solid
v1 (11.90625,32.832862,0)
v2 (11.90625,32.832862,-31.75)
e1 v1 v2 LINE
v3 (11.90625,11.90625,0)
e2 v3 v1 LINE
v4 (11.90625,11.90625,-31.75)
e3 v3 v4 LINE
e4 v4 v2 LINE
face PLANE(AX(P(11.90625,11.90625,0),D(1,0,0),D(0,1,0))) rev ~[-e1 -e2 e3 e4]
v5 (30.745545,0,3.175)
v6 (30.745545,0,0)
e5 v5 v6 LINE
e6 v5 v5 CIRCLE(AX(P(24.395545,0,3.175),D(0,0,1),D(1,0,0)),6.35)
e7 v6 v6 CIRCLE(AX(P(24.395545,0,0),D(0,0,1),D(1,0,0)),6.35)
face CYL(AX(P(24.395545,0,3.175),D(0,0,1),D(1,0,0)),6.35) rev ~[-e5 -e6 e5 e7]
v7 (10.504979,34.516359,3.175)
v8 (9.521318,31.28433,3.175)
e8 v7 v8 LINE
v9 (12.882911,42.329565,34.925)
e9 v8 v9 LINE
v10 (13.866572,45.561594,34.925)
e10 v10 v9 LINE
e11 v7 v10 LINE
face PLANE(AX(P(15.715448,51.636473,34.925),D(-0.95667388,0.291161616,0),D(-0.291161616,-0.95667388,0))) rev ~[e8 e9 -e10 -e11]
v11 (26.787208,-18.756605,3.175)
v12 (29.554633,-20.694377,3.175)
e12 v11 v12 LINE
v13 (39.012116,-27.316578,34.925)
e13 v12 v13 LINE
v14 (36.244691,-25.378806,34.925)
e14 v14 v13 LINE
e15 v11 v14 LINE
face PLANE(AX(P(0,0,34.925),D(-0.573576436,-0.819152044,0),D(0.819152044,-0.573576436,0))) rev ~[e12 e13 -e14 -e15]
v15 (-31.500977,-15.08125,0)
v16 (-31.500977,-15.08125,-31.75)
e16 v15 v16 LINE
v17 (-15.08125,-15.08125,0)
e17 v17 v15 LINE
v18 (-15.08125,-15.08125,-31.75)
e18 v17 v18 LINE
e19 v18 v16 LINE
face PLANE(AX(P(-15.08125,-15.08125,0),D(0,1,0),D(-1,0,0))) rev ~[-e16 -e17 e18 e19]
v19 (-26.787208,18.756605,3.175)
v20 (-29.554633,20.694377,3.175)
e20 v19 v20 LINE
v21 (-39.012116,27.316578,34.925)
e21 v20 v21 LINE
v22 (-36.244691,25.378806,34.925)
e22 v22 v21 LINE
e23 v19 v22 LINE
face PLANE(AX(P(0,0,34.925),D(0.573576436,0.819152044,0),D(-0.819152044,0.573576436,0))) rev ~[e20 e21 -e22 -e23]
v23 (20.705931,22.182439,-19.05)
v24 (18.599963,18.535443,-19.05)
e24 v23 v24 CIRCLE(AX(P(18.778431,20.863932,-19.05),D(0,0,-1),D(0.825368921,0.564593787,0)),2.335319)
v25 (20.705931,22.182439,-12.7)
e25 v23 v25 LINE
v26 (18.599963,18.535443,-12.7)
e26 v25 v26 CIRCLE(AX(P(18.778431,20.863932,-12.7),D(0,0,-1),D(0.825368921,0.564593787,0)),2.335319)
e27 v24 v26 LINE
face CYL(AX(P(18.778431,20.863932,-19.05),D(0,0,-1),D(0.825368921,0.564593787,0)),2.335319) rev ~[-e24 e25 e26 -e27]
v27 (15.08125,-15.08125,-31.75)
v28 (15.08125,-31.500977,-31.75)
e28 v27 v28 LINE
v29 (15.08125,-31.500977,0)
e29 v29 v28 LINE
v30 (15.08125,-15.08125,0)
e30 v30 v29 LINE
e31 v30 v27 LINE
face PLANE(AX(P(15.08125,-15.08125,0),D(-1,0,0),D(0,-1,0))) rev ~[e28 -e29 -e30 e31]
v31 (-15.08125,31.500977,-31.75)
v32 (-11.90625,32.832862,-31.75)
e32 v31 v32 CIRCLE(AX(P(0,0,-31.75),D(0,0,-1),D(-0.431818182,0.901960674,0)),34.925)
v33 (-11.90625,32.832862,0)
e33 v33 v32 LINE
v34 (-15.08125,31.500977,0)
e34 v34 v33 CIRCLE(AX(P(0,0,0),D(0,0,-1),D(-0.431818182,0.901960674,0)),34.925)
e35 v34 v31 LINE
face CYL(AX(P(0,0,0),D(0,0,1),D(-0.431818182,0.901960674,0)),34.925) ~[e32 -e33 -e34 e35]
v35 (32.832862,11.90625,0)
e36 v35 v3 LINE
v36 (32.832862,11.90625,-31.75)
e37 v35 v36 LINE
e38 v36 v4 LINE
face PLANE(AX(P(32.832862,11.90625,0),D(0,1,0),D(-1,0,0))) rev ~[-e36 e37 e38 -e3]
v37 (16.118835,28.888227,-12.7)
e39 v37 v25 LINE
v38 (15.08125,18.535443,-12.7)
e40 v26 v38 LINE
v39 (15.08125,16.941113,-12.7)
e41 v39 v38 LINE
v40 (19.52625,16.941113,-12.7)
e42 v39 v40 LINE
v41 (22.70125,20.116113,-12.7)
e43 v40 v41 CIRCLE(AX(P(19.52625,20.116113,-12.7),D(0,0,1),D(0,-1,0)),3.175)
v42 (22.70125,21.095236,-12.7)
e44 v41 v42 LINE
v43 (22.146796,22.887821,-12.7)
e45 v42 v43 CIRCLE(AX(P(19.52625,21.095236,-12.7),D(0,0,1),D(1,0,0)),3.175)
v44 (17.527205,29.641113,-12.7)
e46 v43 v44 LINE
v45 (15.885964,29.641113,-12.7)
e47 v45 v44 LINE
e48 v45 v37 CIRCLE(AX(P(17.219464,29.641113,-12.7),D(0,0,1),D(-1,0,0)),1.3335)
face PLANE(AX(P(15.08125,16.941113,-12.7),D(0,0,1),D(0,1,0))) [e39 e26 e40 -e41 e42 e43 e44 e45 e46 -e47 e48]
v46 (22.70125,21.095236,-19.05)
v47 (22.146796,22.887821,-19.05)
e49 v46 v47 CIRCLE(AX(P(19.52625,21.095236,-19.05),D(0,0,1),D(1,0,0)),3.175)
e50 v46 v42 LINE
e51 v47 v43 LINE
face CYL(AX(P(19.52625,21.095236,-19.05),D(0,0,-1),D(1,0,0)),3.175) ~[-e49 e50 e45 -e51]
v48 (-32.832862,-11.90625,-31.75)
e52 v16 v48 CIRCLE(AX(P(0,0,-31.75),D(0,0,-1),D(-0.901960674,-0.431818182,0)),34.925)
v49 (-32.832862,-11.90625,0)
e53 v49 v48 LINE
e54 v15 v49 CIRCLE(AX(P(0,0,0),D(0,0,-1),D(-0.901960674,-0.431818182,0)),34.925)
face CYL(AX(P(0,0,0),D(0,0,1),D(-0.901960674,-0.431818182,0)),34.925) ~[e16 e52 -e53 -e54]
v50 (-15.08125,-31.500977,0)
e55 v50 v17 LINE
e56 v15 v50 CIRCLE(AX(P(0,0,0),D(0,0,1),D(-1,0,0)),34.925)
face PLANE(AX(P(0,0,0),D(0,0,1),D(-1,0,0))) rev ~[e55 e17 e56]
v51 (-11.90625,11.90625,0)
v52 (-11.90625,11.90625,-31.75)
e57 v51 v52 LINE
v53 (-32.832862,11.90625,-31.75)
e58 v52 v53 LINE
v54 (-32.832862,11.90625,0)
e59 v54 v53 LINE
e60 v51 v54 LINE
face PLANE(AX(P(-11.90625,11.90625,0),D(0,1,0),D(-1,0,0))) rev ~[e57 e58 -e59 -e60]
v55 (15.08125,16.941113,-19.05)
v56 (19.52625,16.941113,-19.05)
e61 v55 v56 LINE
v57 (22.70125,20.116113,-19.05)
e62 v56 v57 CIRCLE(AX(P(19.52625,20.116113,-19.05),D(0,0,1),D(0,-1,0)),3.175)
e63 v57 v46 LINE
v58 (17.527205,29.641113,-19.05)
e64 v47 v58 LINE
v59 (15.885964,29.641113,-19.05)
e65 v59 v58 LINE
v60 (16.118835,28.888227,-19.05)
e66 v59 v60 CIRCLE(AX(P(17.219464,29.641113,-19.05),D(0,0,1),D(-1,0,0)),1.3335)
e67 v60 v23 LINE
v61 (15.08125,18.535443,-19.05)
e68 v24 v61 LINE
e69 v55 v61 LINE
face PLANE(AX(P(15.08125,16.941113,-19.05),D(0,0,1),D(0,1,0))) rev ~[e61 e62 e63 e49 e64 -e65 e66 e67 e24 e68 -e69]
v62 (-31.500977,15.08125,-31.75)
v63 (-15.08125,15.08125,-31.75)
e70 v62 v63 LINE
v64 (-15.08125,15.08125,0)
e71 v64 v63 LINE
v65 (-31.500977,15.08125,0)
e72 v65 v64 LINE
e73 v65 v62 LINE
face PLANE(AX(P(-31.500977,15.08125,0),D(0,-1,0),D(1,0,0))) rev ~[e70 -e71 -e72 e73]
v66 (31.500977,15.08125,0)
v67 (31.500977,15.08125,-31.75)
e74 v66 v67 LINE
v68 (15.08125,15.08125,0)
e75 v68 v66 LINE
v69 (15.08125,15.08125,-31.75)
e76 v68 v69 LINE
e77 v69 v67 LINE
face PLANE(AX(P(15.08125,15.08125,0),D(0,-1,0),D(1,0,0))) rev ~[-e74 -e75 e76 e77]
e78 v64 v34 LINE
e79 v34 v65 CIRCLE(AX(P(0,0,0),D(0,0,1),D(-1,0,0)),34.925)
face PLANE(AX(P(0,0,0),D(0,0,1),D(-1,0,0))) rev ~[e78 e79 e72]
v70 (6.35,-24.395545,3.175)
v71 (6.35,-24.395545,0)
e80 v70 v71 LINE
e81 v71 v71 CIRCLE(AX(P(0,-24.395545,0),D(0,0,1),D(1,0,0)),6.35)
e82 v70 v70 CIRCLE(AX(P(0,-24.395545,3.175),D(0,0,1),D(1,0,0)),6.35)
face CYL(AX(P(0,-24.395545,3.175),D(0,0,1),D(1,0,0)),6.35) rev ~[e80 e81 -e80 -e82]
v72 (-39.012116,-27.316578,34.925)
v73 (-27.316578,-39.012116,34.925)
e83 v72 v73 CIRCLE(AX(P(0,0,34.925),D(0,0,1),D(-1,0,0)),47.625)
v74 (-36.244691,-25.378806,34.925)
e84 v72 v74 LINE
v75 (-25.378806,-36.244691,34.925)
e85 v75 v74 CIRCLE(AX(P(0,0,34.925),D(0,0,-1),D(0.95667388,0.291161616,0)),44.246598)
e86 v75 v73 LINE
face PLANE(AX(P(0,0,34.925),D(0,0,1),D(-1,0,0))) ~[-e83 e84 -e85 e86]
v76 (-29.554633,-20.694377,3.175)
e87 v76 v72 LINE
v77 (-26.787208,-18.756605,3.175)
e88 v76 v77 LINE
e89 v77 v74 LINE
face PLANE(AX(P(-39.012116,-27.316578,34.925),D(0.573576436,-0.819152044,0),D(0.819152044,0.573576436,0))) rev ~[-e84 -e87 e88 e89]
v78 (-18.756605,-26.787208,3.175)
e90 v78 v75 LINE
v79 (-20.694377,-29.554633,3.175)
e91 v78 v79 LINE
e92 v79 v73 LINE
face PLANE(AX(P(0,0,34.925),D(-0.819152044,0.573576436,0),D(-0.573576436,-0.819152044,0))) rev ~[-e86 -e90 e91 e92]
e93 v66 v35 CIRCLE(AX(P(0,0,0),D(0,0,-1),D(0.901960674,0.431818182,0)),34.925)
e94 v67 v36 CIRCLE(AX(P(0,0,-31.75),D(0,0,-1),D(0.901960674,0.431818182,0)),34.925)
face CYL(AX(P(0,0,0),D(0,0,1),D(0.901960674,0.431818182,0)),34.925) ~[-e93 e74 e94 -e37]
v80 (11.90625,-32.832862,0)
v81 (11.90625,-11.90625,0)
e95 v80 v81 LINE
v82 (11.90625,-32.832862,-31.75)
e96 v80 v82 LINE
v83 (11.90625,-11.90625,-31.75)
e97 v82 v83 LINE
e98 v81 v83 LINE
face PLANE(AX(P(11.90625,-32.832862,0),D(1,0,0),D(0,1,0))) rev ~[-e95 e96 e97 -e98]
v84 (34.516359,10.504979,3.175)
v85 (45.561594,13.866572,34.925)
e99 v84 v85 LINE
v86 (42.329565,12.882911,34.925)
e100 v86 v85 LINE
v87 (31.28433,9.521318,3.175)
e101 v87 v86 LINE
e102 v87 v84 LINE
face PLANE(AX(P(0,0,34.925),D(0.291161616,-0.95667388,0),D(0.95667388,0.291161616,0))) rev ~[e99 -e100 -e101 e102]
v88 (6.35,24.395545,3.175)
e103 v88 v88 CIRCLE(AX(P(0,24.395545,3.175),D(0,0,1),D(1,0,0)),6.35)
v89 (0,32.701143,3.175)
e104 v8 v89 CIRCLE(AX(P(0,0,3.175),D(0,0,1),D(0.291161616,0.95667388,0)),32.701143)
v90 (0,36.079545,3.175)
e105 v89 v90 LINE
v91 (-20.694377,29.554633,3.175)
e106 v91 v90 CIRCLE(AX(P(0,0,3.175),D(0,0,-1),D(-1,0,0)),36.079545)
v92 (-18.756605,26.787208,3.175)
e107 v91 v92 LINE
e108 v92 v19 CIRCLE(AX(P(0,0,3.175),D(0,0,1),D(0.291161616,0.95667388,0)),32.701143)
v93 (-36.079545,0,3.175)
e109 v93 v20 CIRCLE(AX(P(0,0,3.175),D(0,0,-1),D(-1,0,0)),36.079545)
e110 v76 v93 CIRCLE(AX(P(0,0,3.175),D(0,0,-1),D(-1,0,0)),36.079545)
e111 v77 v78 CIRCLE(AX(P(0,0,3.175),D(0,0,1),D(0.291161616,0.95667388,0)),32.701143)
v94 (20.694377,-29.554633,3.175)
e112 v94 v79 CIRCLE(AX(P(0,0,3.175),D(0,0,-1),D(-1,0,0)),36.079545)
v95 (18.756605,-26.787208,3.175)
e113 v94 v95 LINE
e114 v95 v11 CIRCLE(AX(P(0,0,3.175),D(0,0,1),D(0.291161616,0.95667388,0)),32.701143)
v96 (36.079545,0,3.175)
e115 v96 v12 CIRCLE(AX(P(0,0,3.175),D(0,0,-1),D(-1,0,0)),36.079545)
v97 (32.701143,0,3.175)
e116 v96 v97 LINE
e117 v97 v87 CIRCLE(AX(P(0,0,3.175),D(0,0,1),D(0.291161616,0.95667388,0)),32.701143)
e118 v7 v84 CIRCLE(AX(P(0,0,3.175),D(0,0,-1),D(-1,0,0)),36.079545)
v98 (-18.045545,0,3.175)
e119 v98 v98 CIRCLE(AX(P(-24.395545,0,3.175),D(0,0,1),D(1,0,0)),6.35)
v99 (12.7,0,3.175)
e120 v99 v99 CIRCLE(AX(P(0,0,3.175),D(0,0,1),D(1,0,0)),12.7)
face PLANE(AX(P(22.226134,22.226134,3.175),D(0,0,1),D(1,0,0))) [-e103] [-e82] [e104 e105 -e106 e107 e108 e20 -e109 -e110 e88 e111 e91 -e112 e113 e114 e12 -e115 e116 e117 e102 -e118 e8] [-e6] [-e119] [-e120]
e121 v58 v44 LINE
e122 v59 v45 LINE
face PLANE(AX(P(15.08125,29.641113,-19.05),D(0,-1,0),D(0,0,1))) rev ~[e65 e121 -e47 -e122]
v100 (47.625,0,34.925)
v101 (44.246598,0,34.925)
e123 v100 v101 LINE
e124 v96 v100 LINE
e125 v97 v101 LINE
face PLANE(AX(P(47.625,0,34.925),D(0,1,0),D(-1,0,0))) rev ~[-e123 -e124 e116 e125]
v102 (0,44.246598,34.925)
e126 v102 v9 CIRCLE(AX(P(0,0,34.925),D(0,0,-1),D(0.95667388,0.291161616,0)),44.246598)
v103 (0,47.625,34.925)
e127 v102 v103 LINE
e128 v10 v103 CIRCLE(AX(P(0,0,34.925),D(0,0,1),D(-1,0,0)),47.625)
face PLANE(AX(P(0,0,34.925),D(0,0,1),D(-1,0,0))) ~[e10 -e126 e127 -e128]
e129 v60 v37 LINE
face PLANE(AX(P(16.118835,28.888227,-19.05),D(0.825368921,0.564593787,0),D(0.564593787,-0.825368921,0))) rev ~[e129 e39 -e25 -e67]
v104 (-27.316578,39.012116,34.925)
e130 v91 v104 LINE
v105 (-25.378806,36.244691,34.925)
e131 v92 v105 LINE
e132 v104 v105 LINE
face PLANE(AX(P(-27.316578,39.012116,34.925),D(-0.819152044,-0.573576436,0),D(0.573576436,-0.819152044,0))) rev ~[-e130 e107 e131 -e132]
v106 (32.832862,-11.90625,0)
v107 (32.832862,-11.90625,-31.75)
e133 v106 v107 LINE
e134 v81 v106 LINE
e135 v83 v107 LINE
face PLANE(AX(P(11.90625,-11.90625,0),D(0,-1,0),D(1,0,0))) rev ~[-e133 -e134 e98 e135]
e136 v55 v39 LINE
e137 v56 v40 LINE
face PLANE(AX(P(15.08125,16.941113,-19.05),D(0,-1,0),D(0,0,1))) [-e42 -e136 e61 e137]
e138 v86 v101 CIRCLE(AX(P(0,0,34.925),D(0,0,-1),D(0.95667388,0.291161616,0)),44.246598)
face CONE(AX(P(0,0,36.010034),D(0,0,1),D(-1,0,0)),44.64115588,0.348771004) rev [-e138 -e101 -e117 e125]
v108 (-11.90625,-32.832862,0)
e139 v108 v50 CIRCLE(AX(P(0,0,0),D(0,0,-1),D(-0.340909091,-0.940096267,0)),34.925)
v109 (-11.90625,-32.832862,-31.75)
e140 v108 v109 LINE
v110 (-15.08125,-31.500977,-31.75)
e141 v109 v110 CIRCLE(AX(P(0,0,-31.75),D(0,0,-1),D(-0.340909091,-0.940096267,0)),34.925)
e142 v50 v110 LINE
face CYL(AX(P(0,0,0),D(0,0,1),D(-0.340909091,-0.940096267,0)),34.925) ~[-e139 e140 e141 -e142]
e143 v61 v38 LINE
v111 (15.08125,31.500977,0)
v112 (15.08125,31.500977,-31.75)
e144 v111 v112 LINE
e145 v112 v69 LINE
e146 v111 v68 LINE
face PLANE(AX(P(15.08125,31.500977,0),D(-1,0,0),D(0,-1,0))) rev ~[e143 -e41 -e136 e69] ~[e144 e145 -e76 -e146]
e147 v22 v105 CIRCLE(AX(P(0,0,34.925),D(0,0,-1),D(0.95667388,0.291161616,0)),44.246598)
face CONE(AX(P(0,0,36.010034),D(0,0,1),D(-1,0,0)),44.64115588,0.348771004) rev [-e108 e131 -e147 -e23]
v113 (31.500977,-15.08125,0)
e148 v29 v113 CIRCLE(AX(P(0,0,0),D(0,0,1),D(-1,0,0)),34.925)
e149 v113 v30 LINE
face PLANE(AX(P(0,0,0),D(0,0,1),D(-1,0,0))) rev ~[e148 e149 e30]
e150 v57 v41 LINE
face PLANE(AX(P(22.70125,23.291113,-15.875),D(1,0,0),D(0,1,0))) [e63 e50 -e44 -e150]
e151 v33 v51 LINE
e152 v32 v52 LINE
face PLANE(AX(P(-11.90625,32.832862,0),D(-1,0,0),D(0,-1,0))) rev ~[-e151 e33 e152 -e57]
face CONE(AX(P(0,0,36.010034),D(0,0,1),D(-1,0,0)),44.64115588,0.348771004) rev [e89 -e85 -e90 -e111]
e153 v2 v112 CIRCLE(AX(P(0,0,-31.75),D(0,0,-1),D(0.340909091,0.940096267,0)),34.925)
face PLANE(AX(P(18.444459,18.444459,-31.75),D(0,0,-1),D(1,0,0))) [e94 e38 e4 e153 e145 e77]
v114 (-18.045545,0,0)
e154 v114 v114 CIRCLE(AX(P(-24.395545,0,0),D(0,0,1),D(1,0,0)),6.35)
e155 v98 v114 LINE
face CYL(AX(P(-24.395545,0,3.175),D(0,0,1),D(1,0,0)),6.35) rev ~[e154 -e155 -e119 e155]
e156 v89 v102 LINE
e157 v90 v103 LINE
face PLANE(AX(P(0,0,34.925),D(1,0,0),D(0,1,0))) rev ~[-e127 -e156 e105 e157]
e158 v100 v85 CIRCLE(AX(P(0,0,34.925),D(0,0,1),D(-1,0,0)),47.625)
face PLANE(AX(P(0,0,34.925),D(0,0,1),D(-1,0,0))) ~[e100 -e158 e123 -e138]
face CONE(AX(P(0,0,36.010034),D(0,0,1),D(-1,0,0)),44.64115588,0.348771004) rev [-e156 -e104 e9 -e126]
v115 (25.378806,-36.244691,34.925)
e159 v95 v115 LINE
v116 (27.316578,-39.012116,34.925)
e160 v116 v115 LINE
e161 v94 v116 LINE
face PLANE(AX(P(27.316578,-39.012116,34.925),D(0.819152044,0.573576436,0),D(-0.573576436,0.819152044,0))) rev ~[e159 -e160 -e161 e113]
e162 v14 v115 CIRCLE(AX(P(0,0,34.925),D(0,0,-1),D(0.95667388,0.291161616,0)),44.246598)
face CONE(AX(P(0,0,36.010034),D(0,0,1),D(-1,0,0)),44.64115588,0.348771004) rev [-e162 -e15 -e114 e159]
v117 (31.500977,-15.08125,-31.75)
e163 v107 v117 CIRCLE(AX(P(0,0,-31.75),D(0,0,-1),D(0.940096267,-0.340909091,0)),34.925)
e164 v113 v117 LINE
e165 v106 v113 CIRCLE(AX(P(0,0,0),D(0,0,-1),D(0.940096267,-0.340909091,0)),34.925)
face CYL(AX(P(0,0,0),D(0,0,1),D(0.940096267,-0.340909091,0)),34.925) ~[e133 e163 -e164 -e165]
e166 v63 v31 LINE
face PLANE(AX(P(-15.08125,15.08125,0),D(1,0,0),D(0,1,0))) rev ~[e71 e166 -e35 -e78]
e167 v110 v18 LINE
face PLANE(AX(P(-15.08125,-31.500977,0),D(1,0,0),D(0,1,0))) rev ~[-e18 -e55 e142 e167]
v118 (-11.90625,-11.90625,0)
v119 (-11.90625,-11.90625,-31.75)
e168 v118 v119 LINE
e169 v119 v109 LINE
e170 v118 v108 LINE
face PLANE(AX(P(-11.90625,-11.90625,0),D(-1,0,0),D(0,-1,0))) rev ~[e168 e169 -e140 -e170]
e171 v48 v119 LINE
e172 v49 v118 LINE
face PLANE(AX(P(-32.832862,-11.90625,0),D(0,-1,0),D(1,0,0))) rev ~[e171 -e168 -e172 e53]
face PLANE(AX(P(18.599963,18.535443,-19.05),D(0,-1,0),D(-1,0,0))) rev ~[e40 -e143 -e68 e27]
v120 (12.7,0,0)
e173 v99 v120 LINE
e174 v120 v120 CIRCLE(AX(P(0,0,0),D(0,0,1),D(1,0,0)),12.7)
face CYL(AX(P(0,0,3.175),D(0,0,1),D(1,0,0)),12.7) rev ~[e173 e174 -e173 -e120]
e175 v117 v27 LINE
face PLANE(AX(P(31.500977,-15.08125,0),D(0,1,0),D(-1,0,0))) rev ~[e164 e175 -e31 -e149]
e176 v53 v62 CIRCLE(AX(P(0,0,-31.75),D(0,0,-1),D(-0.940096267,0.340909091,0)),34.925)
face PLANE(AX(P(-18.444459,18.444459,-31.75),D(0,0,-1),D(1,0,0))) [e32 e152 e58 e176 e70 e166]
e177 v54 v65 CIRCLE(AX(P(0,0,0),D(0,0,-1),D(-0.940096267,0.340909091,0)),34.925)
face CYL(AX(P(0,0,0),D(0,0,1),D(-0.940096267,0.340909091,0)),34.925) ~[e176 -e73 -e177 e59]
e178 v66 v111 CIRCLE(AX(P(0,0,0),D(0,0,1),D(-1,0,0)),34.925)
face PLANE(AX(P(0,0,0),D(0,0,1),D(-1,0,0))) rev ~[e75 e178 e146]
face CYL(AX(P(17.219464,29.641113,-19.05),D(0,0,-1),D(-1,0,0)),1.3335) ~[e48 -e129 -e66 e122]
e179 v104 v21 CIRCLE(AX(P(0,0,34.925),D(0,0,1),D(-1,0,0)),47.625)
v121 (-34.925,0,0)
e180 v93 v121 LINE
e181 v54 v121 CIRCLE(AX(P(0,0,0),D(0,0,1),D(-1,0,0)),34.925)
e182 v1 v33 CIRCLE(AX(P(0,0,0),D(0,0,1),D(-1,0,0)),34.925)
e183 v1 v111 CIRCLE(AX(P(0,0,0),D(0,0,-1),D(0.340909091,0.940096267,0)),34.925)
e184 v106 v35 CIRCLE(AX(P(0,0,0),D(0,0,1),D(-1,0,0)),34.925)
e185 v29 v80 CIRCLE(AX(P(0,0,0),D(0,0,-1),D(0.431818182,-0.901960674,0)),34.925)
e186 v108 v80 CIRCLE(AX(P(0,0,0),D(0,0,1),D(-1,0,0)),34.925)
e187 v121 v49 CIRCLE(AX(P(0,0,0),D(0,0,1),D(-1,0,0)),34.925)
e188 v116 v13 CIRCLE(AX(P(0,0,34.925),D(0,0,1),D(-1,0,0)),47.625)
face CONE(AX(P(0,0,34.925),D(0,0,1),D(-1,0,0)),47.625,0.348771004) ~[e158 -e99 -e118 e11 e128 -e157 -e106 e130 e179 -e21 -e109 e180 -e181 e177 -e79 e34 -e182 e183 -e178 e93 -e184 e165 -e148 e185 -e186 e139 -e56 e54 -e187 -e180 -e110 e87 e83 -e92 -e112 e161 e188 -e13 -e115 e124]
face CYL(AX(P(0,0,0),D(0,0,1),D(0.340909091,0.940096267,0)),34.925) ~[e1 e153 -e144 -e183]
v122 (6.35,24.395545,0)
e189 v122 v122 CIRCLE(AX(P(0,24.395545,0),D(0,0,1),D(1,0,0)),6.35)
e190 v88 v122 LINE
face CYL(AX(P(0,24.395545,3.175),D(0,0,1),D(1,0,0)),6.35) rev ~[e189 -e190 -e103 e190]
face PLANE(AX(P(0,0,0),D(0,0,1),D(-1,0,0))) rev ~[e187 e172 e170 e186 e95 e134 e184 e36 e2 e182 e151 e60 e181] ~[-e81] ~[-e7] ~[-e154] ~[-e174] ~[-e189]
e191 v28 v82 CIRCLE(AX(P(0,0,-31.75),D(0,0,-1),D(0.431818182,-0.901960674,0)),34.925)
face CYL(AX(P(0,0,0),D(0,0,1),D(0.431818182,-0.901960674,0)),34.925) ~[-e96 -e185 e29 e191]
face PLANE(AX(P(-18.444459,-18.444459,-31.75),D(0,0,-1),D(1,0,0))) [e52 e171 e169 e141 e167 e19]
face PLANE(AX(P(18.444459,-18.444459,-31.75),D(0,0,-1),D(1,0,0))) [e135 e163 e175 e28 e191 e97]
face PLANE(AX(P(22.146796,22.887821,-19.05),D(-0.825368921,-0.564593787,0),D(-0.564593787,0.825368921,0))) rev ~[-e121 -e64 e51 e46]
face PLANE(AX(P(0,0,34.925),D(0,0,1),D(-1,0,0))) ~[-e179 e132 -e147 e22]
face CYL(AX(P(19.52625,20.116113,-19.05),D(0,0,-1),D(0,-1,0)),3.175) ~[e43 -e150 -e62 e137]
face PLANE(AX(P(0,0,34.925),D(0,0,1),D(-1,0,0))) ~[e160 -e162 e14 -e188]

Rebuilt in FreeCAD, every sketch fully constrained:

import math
import FreeCAD as App
import Part
import Sketcher
from FreeCAD import Vector
Q = App.Units.Quantity


def faces_at(feature, points):
    """Names of the faces that lie closest to the given points."""
    faces = feature.Shape.Faces
    near = lambda p: min(range(len(faces)), key=lambda i: faces[i].distToShape(Part.Vertex(*p))[0])
    return sorted({f"Face{near(p) + 1}" for p in points})


def add_polygon(sketch, points):
    """Adds a closed chain of lines whose ends are joined by coincident constraints."""
    first, n = sketch.GeometryCount, len(points)
    for a, b in zip(points, points[1:] + points[:1]):
        sketch.addGeometry(Part.LineSegment(App.Vector(*a, 0), App.Vector(*b, 0)), False)
    for i in range(n):
        sketch.addConstraint(Sketcher.Constraint("Coincident", first + i, 2, first + (i + 1) % n, 1))

doc = App.newDocument("Part")
body = doc.addObject("PartDesign::Body", "Body")

sketch1 = doc.addObject("Sketcher::SketchObject", "Sketch")
body.addObject(sketch1)
sketch1.AttachmentSupport = (doc.XZ_Plane, [""])
sketch1.MapMode = "FlatFace"
add_polygon(sketch1, [(-35, 0), (0, 0), (0, 35), (-48, 35)])
sketch1.addConstraint(Sketcher.Constraint("Horizontal", 0))
sketch1.addConstraint(Sketcher.Constraint("Vertical", 1))
sketch1.addConstraint(Sketcher.Constraint("Horizontal", 2))
sketch1.addConstraint(Sketcher.Constraint("Coincident", 0, 2, -1, 1))
sketch1.addConstraint(Sketcher.Constraint("Equal", 0, 1))
sketch1.addConstraint(Sketcher.Constraint("DistanceX", 2, 2, 3, 2, Q("0.5 in")))
sketch1.addConstraint(Sketcher.Constraint("DistanceX", 0, 1, 0, 2, Q("1.375 in")))
revolution = doc.addObject("PartDesign::Revolution", "Revolution")
body.addObject(revolution)
revolution.Profile = sketch1
revolution.ReferenceAxis = (sketch1, ["V_Axis"])
revolution.Angle = 360
doc.recompute()

thickness = doc.addObject("PartDesign::Thickness", "Thickness")
body.addObject(thickness)
thickness.Base = (revolution, faces_at(revolution, [(0, 0, 34.925)]))
thickness.Value = Q("0.125 in")
thickness.Reversed = True
thickness.Join = "Arc"

sketch2 = doc.addObject("Sketcher::SketchObject", "Sketch001")
body.addObject(sketch2)
sketch2.AttachmentSupport = (doc.XY_Plane, [""])
sketch2.MapMode = "FlatFace"
sketch2.addGeometry(Part.LineSegment(Vector(-32.8, -11.9, 0), Vector(-11.9, -11.9, 0)), False)
sketch2.addGeometry(Part.LineSegment(Vector(-11.9, -11.9, 0), Vector(-11.9, -32.8, 0)), False)
sketch2.addGeometry(Part.ArcOfCircle(Part.Circle(Vector(0, 0, 0), Vector(0, 0, 1), 34.9), math.radians(-115.58), math.radians(-109.93)), False)
sketch2.addGeometry(Part.LineSegment(Vector(-15.1, -31.5, 0), Vector(-15.1, -15.1, 0)), False)
sketch2.addGeometry(Part.LineSegment(Vector(-15.1, -15.1, 0), Vector(-31.5, -15.1, 0)), False)
sketch2.addGeometry(Part.ArcOfCircle(Part.Circle(Vector(0, 0, 0), Vector(0, 0, 1), 34.9), math.radians(-160.07), math.radians(-154.42)), False)
sketch2.addGeometry(Part.LineSegment(Vector(-11.9, 32.8, 0), Vector(-11.9, 11.9, 0)), False)
sketch2.addGeometry(Part.LineSegment(Vector(-11.9, 11.9, 0), Vector(-32.8, 11.9, 0)), False)
sketch2.addGeometry(Part.ArcOfCircle(Part.Circle(Vector(0, 0, 0), Vector(0, 0, 1), 34.9), math.radians(154.42), math.radians(160.07)), False)
sketch2.addGeometry(Part.LineSegment(Vector(-31.5, 15.1, 0), Vector(-15.1, 15.1, 0)), False)
sketch2.addGeometry(Part.LineSegment(Vector(-15.1, 15.1, 0), Vector(-15.1, 31.5, 0)), False)
sketch2.addGeometry(Part.ArcOfCircle(Part.Circle(Vector(0, 0, 0), Vector(0, 0, 1), 34.9), math.radians(109.93), math.radians(115.58)), False)
sketch2.addGeometry(Part.LineSegment(Vector(32.8, 11.9, 0), Vector(11.9, 11.9, 0)), False)
sketch2.addGeometry(Part.LineSegment(Vector(11.9, 11.9, 0), Vector(11.9, 32.8, 0)), False)
sketch2.addGeometry(Part.ArcOfCircle(Part.Circle(Vector(0, 0, 0), Vector(0, 0, 1), 34.9), math.radians(64.42), math.radians(70.07)), False)
sketch2.addGeometry(Part.LineSegment(Vector(15.1, 31.5, 0), Vector(15.1, 15.1, 0)), False)
sketch2.addGeometry(Part.LineSegment(Vector(15.1, 15.1, 0), Vector(31.5, 15.1, 0)), False)
sketch2.addGeometry(Part.ArcOfCircle(Part.Circle(Vector(0, 0, 0), Vector(0, 0, 1), 34.9), math.radians(19.93), math.radians(25.58)), False)
sketch2.addGeometry(Part.LineSegment(Vector(11.9, -32.8, 0), Vector(11.9, -11.9, 0)), False)
sketch2.addGeometry(Part.LineSegment(Vector(11.9, -11.9, 0), Vector(32.8, -11.9, 0)), False)
sketch2.addGeometry(Part.ArcOfCircle(Part.Circle(Vector(0, 0, 0), Vector(0, 0, 1), 34.9), math.radians(-25.58), math.radians(-19.93)), False)
sketch2.addGeometry(Part.LineSegment(Vector(31.5, -15.1, 0), Vector(15.1, -15.1, 0)), False)
sketch2.addGeometry(Part.LineSegment(Vector(15.1, -15.1, 0), Vector(15.1, -31.5, 0)), False)
sketch2.addGeometry(Part.ArcOfCircle(Part.Circle(Vector(0, 0, 0), Vector(0, 0, 1), 34.9), math.radians(-70.07), math.radians(-64.42)), False)
sketch2.addConstraint(Sketcher.Constraint("Coincident", 0, 2, 1, 1))
sketch2.addConstraint(Sketcher.Constraint("Coincident", 1, 2, 2, 2))
sketch2.addConstraint(Sketcher.Constraint("Coincident", 2, 1, 3, 1))
sketch2.addConstraint(Sketcher.Constraint("Coincident", 3, 2, 4, 1))
sketch2.addConstraint(Sketcher.Constraint("Coincident", 4, 2, 5, 2))
sketch2.addConstraint(Sketcher.Constraint("Coincident", 5, 1, 0, 1))
sketch2.addConstraint(Sketcher.Constraint("Coincident", 6, 2, 7, 1))
sketch2.addConstraint(Sketcher.Constraint("Coincident", 7, 2, 8, 2))
sketch2.addConstraint(Sketcher.Constraint("Coincident", 8, 1, 9, 1))
sketch2.addConstraint(Sketcher.Constraint("Coincident", 9, 2, 10, 1))
sketch2.addConstraint(Sketcher.Constraint("Coincident", 10, 2, 11, 2))
sketch2.addConstraint(Sketcher.Constraint("Coincident", 11, 1, 6, 1))
sketch2.addConstraint(Sketcher.Constraint("Coincident", 12, 2, 13, 1))
sketch2.addConstraint(Sketcher.Constraint("Coincident", 13, 2, 14, 2))
sketch2.addConstraint(Sketcher.Constraint("Coincident", 14, 1, 15, 1))
sketch2.addConstraint(Sketcher.Constraint("Coincident", 15, 2, 16, 1))
sketch2.addConstraint(Sketcher.Constraint("Coincident", 16, 2, 17, 2))
sketch2.addConstraint(Sketcher.Constraint("Coincident", 17, 1, 12, 1))
sketch2.addConstraint(Sketcher.Constraint("Coincident", 18, 2, 19, 1))
sketch2.addConstraint(Sketcher.Constraint("Coincident", 19, 2, 20, 2))
sketch2.addConstraint(Sketcher.Constraint("Coincident", 20, 1, 21, 1))
sketch2.addConstraint(Sketcher.Constraint("Coincident", 21, 2, 22, 1))
sketch2.addConstraint(Sketcher.Constraint("Coincident", 22, 2, 23, 2))
sketch2.addConstraint(Sketcher.Constraint("Coincident", 23, 1, 18, 1))
sketch2.addConstraint(Sketcher.Constraint("Horizontal", 0))
sketch2.addConstraint(Sketcher.Constraint("Vertical", 1))
sketch2.addConstraint(Sketcher.Constraint("Vertical", 3))
sketch2.addConstraint(Sketcher.Constraint("Horizontal", 4))
sketch2.addConstraint(Sketcher.Constraint("Vertical", 6))
sketch2.addConstraint(Sketcher.Constraint("Horizontal", 7))
sketch2.addConstraint(Sketcher.Constraint("Horizontal", 9))
sketch2.addConstraint(Sketcher.Constraint("Vertical", 10))
sketch2.addConstraint(Sketcher.Constraint("Horizontal", 12))
sketch2.addConstraint(Sketcher.Constraint("Vertical", 13))
sketch2.addConstraint(Sketcher.Constraint("Vertical", 15))
sketch2.addConstraint(Sketcher.Constraint("Horizontal", 16))
sketch2.addConstraint(Sketcher.Constraint("Vertical", 18))
sketch2.addConstraint(Sketcher.Constraint("Horizontal", 19))
sketch2.addConstraint(Sketcher.Constraint("Horizontal", 21))
sketch2.addConstraint(Sketcher.Constraint("Vertical", 22))
sketch2.addConstraint(Sketcher.Constraint("Coincident", 2, 3, -1, 1))
sketch2.addConstraint(Sketcher.Constraint("Coincident", 5, 3, -1, 1))
sketch2.addConstraint(Sketcher.Constraint("Coincident", 8, 3, -1, 1))
sketch2.addConstraint(Sketcher.Constraint("Coincident", 11, 3, -1, 1))
sketch2.addConstraint(Sketcher.Constraint("Coincident", 14, 3, -1, 1))
sketch2.addConstraint(Sketcher.Constraint("Coincident", 17, 3, -1, 1))
sketch2.addConstraint(Sketcher.Constraint("Coincident", 20, 3, -1, 1))
sketch2.addConstraint(Sketcher.Constraint("Coincident", 23, 3, -1, 1))
sketch2.addConstraint(Sketcher.Constraint("Equal", 2, 5))
sketch2.addConstraint(Sketcher.Constraint("Equal", 5, 8))
sketch2.addConstraint(Sketcher.Constraint("Equal", 8, 11))
sketch2.addConstraint(Sketcher.Constraint("Equal", 11, 14))
sketch2.addConstraint(Sketcher.Constraint("Equal", 14, 17))
sketch2.addConstraint(Sketcher.Constraint("Equal", 17, 20))
sketch2.addConstraint(Sketcher.Constraint("Equal", 20, 23))
sketch2.addConstraint(Sketcher.Constraint("Symmetric", 0, 2, 12, 2, -1, 1))
sketch2.addConstraint(Sketcher.Constraint("Symmetric", 3, 2, 15, 2, -1, 1))
sketch2.addConstraint(Sketcher.Constraint("Symmetric", 6, 2, 18, 2, -1, 1))
sketch2.addConstraint(Sketcher.Constraint("Symmetric", 9, 2, 21, 2, -1, 1))
sketch2.addConstraint(Sketcher.Constraint("Symmetric", 6, 2, 12, 2, -2))
sketch2.addConstraint(Sketcher.Constraint("Symmetric", 9, 2, 15, 2, -2))
sketch2.addConstraint(Sketcher.Constraint("Equal", 19, 1))
sketch2.addConstraint(Sketcher.Constraint("Equal", 21, 3))
sketch2.addConstraint(Sketcher.Constraint("Radius", 2, Q("1.375 in")))
sketch2.addConstraint(Sketcher.Constraint("DistanceX", 0, 2, -1, 1, Q("0.46875 in")))
sketch2.addConstraint(Sketcher.Constraint("DistanceX", 2, 1, -1, 1, Q("0.59375 in")))
pad1 = doc.addObject("PartDesign::Pad", "Pad")
body.addObject(pad1)
pad1.Profile = sketch2
pad1.Length = Q("1.25 in")
pad1.Reversed = True

sketch3 = doc.addObject("Sketcher::SketchObject", "Sketch002")
body.addObject(sketch3)
sketch3.AttachmentSupport = (doc.XY_Plane, [""])
sketch3.MapMode = "FlatFace"
sketch3.AttachmentOffset = App.Placement(Vector(0, 0, 1.375 * 25.4), App.Rotation())
add_polygon(sketch3, [(16, 52), (0, 0), (52, 16)])
sketch3.addConstraint(Sketcher.Constraint("Coincident", 0, 2, -1, 1))
sketch3.addConstraint(Sketcher.Constraint("Equal", 0, 1))
sketch3.addConstraint(Sketcher.Constraint("Distance", 2, Q("2 in")))
sketch3.addConstraint(Sketcher.Constraint("Angle", 2, Q("135 deg")))
sketch3.addConstraint(Sketcher.Constraint("Distance", 0, Q("2.125 in")))
pocket1 = doc.addObject("PartDesign::Pocket", "Pocket")
body.addObject(pocket1)
pocket1.Profile = sketch3
pocket1.Length = Q("1.25 in")

sketch4 = doc.addObject("Sketcher::SketchObject", "Sketch003")
body.addObject(sketch4)
sketch4.AttachmentSupport = (doc.XY_Plane, [""])
sketch4.MapMode = "FlatFace"
sketch4.AttachmentOffset = App.Placement(Vector(0, 0, 1.375 * 25.4), App.Rotation())
sketch4.addGeometry(Part.LineSegment(Vector(-27, 39, 0), Vector(0, 0, 0)), False)
sketch4.addGeometry(Part.LineSegment(Vector(0, 0, 0), Vector(0, 48, 0)), False)
sketch4.addGeometry(Part.ArcOfCircle(Part.Circle(Vector(0, 0, 0), Vector(0, 0, 1), 48), math.radians(90), math.radians(125)), False)
sketch4.addGeometry(Part.LineSegment(Vector(-39, -27, 0), Vector(0, 0, 0)), False)
sketch4.addGeometry(Part.LineSegment(Vector(0, 0, 0), Vector(-39, 27, 0)), False)
sketch4.addGeometry(Part.ArcOfCircle(Part.Circle(Vector(0, 0, 0), Vector(0, 0, 1), 48), math.radians(145), math.radians(215)), False)
sketch4.addGeometry(Part.LineSegment(Vector(27, -39, 0), Vector(0, 0, 0)), False)
sketch4.addGeometry(Part.LineSegment(Vector(0, 0, 0), Vector(-27, -39, 0)), False)
sketch4.addGeometry(Part.ArcOfCircle(Part.Circle(Vector(0, 0, 0), Vector(0, 0, 1), 48), math.radians(-125), math.radians(-55)), False)
sketch4.addGeometry(Part.LineSegment(Vector(48, 0, 0), Vector(0, 0, 0)), False)
sketch4.addGeometry(Part.LineSegment(Vector(0, 0, 0), Vector(39, -27, 0)), False)
sketch4.addGeometry(Part.ArcOfCircle(Part.Circle(Vector(0, 0, 0), Vector(0, 0, 1), 48), math.radians(-35), math.radians(0)), False)
sketch4.addConstraint(Sketcher.Constraint("Coincident", 0, 2, 1, 1))
sketch4.addConstraint(Sketcher.Constraint("Coincident", 1, 2, 2, 1))
sketch4.addConstraint(Sketcher.Constraint("Coincident", 2, 2, 0, 1))
sketch4.addConstraint(Sketcher.Constraint("Coincident", 3, 2, 4, 1))
sketch4.addConstraint(Sketcher.Constraint("Coincident", 4, 2, 5, 1))
sketch4.addConstraint(Sketcher.Constraint("Coincident", 5, 2, 3, 1))
sketch4.addConstraint(Sketcher.Constraint("Coincident", 6, 2, 7, 1))
sketch4.addConstraint(Sketcher.Constraint("Coincident", 7, 2, 8, 1))
sketch4.addConstraint(Sketcher.Constraint("Coincident", 8, 2, 6, 1))
sketch4.addConstraint(Sketcher.Constraint("Coincident", 9, 2, 10, 1))
sketch4.addConstraint(Sketcher.Constraint("Coincident", 10, 2, 11, 1))
sketch4.addConstraint(Sketcher.Constraint("Coincident", 11, 2, 9, 1))
sketch4.addConstraint(Sketcher.Constraint("Vertical", 1))
sketch4.addConstraint(Sketcher.Constraint("Horizontal", 9))
sketch4.addConstraint(Sketcher.Constraint("Coincident", 2, 3, -1, 1))
sketch4.addConstraint(Sketcher.Constraint("Coincident", 5, 3, -1, 1))
sketch4.addConstraint(Sketcher.Constraint("Coincident", 8, 3, -1, 1))
sketch4.addConstraint(Sketcher.Constraint("Coincident", 11, 3, -1, 1))
sketch4.addConstraint(Sketcher.Constraint("Coincident", 0, 2, -1, 1))
sketch4.addConstraint(Sketcher.Constraint("Coincident", 3, 2, -1, 1))
sketch4.addConstraint(Sketcher.Constraint("Coincident", 6, 2, -1, 1))
sketch4.addConstraint(Sketcher.Constraint("Coincident", 9, 2, -1, 1))
sketch4.addConstraint(Sketcher.Constraint("Equal", 2, 5))
sketch4.addConstraint(Sketcher.Constraint("Equal", 5, 8))
sketch4.addConstraint(Sketcher.Constraint("Equal", 8, 11))
sketch4.addConstraint(Sketcher.Constraint("Perpendicular", 0, 3))
sketch4.addConstraint(Sketcher.Constraint("Perpendicular", 3, 6))
sketch4.addConstraint(Sketcher.Constraint("Perpendicular", 4, 7))
sketch4.addConstraint(Sketcher.Constraint("Perpendicular", 7, 10))
sketch4.addConstraint(Sketcher.Constraint("Horizontal", 7, 2, 8, 2))
sketch4.addConstraint(Sketcher.Constraint("Angle", 0, Q("-55 deg")))
sketch4.addConstraint(Sketcher.Constraint("Radius", 2, Q("1.875 in")))
pocket2 = doc.addObject("PartDesign::Pocket", "Pocket001")
body.addObject(pocket2)
pocket2.Profile = sketch4
pocket2.Length = Q("1.25 in")

sketch5 = doc.addObject("Sketcher::SketchObject", "Sketch004")
body.addObject(sketch5)
sketch5.AttachmentSupport = (doc.XY_Plane, [""])
sketch5.MapMode = "FlatFace"
sketch5.AttachmentOffset = App.Placement(Vector(0, 0, 0.125 * 25.4), App.Rotation())
sketch5.addGeometry(Part.Circle(Vector(0, 0, 0), Vector(0, 0, 1), 13), False)
sketch5.addConstraint(Sketcher.Constraint("Coincident", 0, 3, -1, 1))
sketch5.addConstraint(Sketcher.Constraint("Diameter", 0, Q("1 in")))
pocket3 = doc.addObject("PartDesign::Pocket", "Pocket002")
body.addObject(pocket3)
pocket3.Profile = sketch5
pocket3.Length = Q("1 in")

sketch6 = doc.addObject("Sketcher::SketchObject", "Sketch005")
body.addObject(sketch6)
sketch6.AttachmentSupport = (doc.YZ_Plane, [""])
sketch6.MapMode = "FlatFace"
sketch6.AttachmentOffset = App.Placement(Vector(0, 0, 0.59375 * 25.4), App.Rotation())
add_polygon(sketch6, [(17, -13), (17, -19), (30, -19), (30, -13)])
sketch6.addConstraint(Sketcher.Constraint("Vertical", 0))
sketch6.addConstraint(Sketcher.Constraint("Horizontal", 1))
sketch6.addConstraint(Sketcher.Constraint("Vertical", 2))
sketch6.addConstraint(Sketcher.Constraint("Horizontal", 3))
sketch6.addConstraint(Sketcher.Constraint("DistanceX", 1, 1, 1, 2, Q("0.5 in")))
sketch6.addConstraint(Sketcher.Constraint("DistanceY", 0, 2, 0, 1, Q("0.25 in")))
sketch6.addConstraint(Sketcher.Constraint("DistanceY", 2, 2, -1, 1, Q("0.5 in")))
sketch6.addConstraint(Sketcher.Constraint("DistanceX", -1, 1, 0, 2, 16.941113))
pad2 = doc.addObject("PartDesign::Pad", "Pad001")
body.addObject(pad2)
pad2.Profile = sketch6
pad2.Length = Q("0.3 in")

sketch7 = doc.addObject("Sketcher::SketchObject", "Sketch006")
body.addObject(sketch7)
sketch7.AttachmentSupport = (doc.XY_Plane, [""])
sketch7.MapMode = "FlatFace"
sketch7.AttachmentOffset = App.Placement(Vector(0, 0, -0.75 * 25.4), App.Rotation())
sketch7.addGeometry(Part.LineSegment(Vector(16.1, 28.9, 0), Vector(20.7, 22.2, 0)), False)
sketch7.addGeometry(Part.ArcOfCircle(Part.Circle(Vector(18.8, 20.9, 0), Vector(0, 0, 1), 2.3), math.radians(-94), math.radians(34)), False)
sketch7.addGeometry(Part.LineSegment(Vector(18.6, 18.5, 0), Vector(15.1, 18.5, 0)), False)
sketch7.addGeometry(Part.LineSegment(Vector(15.1, 18.5, 0), Vector(15.1, 29.6, 0)), False)
sketch7.addGeometry(Part.LineSegment(Vector(15.1, 29.6, 0), Vector(15.9, 29.6, 0)), False)
sketch7.addGeometry(Part.ArcOfCircle(Part.Circle(Vector(17.2, 29.6, 0), Vector(0, 0, 1), 1.3), math.radians(180), math.radians(214)), False)
sketch7.addGeometry(Part.ArcOfCircle(Part.Circle(Vector(19.5, 20.1, 0), Vector(0, 0, 1), 3.2), math.radians(-90), math.radians(0)), False)
sketch7.addGeometry(Part.LineSegment(Vector(22.7, 20.1, 0), Vector(22.7, 16.9, 0)), False)
sketch7.addGeometry(Part.LineSegment(Vector(22.7, 16.9, 0), Vector(19.5, 16.9, 0)), False)
sketch7.addGeometry(Part.LineSegment(Vector(22.1, 22.9, 0), Vector(17.5, 29.6, 0)), False)
sketch7.addGeometry(Part.LineSegment(Vector(17.5, 29.6, 0), Vector(22.7, 29.6, 0)), False)
sketch7.addGeometry(Part.LineSegment(Vector(22.7, 29.6, 0), Vector(22.7, 21.1, 0)), False)
sketch7.addGeometry(Part.ArcOfCircle(Part.Circle(Vector(19.5, 21.1, 0), Vector(0, 0, 1), 3.2), math.radians(0), math.radians(34)), False)
sketch7.addConstraint(Sketcher.Constraint("Tangent", 0, 2, 1, 2))
sketch7.addConstraint(Sketcher.Constraint("Coincident", 1, 1, 2, 1))
sketch7.addConstraint(Sketcher.Constraint("Coincident", 2, 2, 3, 1))
sketch7.addConstraint(Sketcher.Constraint("Coincident", 3, 2, 4, 1))
sketch7.addConstraint(Sketcher.Constraint("Coincident", 4, 2, 5, 1))
sketch7.addConstraint(Sketcher.Constraint("Tangent", 5, 2, 0, 1))
sketch7.addConstraint(Sketcher.Constraint("Tangent", 6, 2, 7, 1))
sketch7.addConstraint(Sketcher.Constraint("Coincident", 7, 2, 8, 1))
sketch7.addConstraint(Sketcher.Constraint("Tangent", 8, 2, 6, 1))
sketch7.addConstraint(Sketcher.Constraint("Coincident", 9, 2, 10, 1))
sketch7.addConstraint(Sketcher.Constraint("Coincident", 10, 2, 11, 1))
sketch7.addConstraint(Sketcher.Constraint("Tangent", 11, 2, 12, 1))
sketch7.addConstraint(Sketcher.Constraint("Tangent", 12, 2, 9, 1))
sketch7.addConstraint(Sketcher.Constraint("Horizontal", 2))
sketch7.addConstraint(Sketcher.Constraint("Vertical", 3))
sketch7.addConstraint(Sketcher.Constraint("Horizontal", 4))
sketch7.addConstraint(Sketcher.Constraint("Vertical", 7))
sketch7.addConstraint(Sketcher.Constraint("Horizontal", 8))
sketch7.addConstraint(Sketcher.Constraint("Horizontal", 10))
sketch7.addConstraint(Sketcher.Constraint("Vertical", 11))
sketch7.addConstraint(Sketcher.Constraint("Equal", 6, 12))
sketch7.addConstraint(Sketcher.Constraint("Parallel", 0, 9))
sketch7.addConstraint(Sketcher.Constraint("Horizontal", 5, 3, 3, 2))
sketch7.addConstraint(Sketcher.Constraint("Horizontal", 4, 2, 9, 2))
sketch7.addConstraint(Sketcher.Constraint("Vertical", 6, 3, 12, 3))
sketch7.addConstraint(Sketcher.Constraint("Radius", 6, Q("0.125 in")))
sketch7.addConstraint(Sketcher.Constraint("Radius", 5, Q("0.0525 in")))
sketch7.addConstraint(Sketcher.Constraint("DistanceX", 3, 2, 10, 2, Q("0.3 in")))
sketch7.addConstraint(Sketcher.Constraint("DistanceX", -1, 1, 2, 2, Q("0.59375 in")))
sketch7.addConstraint(Sketcher.Constraint("Radius", 1, 2.335319))
sketch7.addConstraint(Sketcher.Constraint("DistanceY", 6, 3, 5, 3, Q("0.375 in")))
sketch7.addConstraint(Sketcher.Constraint("DistanceY", 3, 1, 3, 2, 11.105671))
sketch7.addConstraint(Sketcher.Constraint("DistanceX", 1, 3, 0, 2, 1.9275))
sketch7.addConstraint(Sketcher.Constraint("DistanceX", 5, 3, 1, 1, 1.380499))
sketch7.addConstraint(Sketcher.Constraint("Distance", 9, 8.18215))
sketch7.addConstraint(Sketcher.Constraint("DistanceX", 2, 2, 2, 1, 3.518713))
sketch7.addConstraint(Sketcher.Constraint("DistanceY", -1, 1, 0, 2, 22.182439))
pocket4 = doc.addObject("PartDesign::Pocket", "Pocket003")
body.addObject(pocket4)
pocket4.Profile = sketch7
pocket4.Length = Q("0.25 in")
pocket4.Reversed = True

sketch8 = doc.addObject("Sketcher::SketchObject", "Sketch007")
body.addObject(sketch8)
sketch8.AttachmentSupport = (doc.XY_Plane, [""])
sketch8.MapMode = "FlatFace"
sketch8.AttachmentOffset = App.Placement(Vector(0, 0, 0.125 * 25.4), App.Rotation())
sketch8.addGeometry(Part.Circle(Vector(-24, 0, 0), Vector(0, 0, 1), 6), False)
sketch8.addGeometry(Part.Circle(Vector(0, -24, 0), Vector(0, 0, 1), 6), False)
sketch8.addGeometry(Part.Circle(Vector(24, 0, 0), Vector(0, 0, 1), 6), False)
sketch8.addGeometry(Part.Circle(Vector(0, 24, 0), Vector(0, 0, 1), 6), False)
sketch8.addConstraint(Sketcher.Constraint("Equal", 0, 1))
sketch8.addConstraint(Sketcher.Constraint("Equal", 1, 2))
sketch8.addConstraint(Sketcher.Constraint("Equal", 2, 3))
sketch8.addConstraint(Sketcher.Constraint("Symmetric", 0, 3, 2, 3, -1, 1))
sketch8.addConstraint(Sketcher.Constraint("Symmetric", 1, 3, 3, 3, -1, 1))
sketch8.addConstraint(Sketcher.Constraint("PointOnObject", 0, 3, -1))
sketch8.addConstraint(Sketcher.Constraint("PointOnObject", 1, 3, -2))
sketch8.addConstraint(Sketcher.Constraint("Diameter", 0, Q("0.5 in")))
sketch8.addConstraint(Sketcher.Constraint("DistanceX", 0, 3, 2, 3, 48.791091))
sketch8.addConstraint(Sketcher.Constraint("DistanceY", 1, 3, 3, 3, 48.791091))
pocket5 = doc.addObject("PartDesign::Pocket", "Pocket004")
body.addObject(pocket5)
pocket5.Profile = sketch8
pocket5.Length = Q("1 in")

doc.recompute()
